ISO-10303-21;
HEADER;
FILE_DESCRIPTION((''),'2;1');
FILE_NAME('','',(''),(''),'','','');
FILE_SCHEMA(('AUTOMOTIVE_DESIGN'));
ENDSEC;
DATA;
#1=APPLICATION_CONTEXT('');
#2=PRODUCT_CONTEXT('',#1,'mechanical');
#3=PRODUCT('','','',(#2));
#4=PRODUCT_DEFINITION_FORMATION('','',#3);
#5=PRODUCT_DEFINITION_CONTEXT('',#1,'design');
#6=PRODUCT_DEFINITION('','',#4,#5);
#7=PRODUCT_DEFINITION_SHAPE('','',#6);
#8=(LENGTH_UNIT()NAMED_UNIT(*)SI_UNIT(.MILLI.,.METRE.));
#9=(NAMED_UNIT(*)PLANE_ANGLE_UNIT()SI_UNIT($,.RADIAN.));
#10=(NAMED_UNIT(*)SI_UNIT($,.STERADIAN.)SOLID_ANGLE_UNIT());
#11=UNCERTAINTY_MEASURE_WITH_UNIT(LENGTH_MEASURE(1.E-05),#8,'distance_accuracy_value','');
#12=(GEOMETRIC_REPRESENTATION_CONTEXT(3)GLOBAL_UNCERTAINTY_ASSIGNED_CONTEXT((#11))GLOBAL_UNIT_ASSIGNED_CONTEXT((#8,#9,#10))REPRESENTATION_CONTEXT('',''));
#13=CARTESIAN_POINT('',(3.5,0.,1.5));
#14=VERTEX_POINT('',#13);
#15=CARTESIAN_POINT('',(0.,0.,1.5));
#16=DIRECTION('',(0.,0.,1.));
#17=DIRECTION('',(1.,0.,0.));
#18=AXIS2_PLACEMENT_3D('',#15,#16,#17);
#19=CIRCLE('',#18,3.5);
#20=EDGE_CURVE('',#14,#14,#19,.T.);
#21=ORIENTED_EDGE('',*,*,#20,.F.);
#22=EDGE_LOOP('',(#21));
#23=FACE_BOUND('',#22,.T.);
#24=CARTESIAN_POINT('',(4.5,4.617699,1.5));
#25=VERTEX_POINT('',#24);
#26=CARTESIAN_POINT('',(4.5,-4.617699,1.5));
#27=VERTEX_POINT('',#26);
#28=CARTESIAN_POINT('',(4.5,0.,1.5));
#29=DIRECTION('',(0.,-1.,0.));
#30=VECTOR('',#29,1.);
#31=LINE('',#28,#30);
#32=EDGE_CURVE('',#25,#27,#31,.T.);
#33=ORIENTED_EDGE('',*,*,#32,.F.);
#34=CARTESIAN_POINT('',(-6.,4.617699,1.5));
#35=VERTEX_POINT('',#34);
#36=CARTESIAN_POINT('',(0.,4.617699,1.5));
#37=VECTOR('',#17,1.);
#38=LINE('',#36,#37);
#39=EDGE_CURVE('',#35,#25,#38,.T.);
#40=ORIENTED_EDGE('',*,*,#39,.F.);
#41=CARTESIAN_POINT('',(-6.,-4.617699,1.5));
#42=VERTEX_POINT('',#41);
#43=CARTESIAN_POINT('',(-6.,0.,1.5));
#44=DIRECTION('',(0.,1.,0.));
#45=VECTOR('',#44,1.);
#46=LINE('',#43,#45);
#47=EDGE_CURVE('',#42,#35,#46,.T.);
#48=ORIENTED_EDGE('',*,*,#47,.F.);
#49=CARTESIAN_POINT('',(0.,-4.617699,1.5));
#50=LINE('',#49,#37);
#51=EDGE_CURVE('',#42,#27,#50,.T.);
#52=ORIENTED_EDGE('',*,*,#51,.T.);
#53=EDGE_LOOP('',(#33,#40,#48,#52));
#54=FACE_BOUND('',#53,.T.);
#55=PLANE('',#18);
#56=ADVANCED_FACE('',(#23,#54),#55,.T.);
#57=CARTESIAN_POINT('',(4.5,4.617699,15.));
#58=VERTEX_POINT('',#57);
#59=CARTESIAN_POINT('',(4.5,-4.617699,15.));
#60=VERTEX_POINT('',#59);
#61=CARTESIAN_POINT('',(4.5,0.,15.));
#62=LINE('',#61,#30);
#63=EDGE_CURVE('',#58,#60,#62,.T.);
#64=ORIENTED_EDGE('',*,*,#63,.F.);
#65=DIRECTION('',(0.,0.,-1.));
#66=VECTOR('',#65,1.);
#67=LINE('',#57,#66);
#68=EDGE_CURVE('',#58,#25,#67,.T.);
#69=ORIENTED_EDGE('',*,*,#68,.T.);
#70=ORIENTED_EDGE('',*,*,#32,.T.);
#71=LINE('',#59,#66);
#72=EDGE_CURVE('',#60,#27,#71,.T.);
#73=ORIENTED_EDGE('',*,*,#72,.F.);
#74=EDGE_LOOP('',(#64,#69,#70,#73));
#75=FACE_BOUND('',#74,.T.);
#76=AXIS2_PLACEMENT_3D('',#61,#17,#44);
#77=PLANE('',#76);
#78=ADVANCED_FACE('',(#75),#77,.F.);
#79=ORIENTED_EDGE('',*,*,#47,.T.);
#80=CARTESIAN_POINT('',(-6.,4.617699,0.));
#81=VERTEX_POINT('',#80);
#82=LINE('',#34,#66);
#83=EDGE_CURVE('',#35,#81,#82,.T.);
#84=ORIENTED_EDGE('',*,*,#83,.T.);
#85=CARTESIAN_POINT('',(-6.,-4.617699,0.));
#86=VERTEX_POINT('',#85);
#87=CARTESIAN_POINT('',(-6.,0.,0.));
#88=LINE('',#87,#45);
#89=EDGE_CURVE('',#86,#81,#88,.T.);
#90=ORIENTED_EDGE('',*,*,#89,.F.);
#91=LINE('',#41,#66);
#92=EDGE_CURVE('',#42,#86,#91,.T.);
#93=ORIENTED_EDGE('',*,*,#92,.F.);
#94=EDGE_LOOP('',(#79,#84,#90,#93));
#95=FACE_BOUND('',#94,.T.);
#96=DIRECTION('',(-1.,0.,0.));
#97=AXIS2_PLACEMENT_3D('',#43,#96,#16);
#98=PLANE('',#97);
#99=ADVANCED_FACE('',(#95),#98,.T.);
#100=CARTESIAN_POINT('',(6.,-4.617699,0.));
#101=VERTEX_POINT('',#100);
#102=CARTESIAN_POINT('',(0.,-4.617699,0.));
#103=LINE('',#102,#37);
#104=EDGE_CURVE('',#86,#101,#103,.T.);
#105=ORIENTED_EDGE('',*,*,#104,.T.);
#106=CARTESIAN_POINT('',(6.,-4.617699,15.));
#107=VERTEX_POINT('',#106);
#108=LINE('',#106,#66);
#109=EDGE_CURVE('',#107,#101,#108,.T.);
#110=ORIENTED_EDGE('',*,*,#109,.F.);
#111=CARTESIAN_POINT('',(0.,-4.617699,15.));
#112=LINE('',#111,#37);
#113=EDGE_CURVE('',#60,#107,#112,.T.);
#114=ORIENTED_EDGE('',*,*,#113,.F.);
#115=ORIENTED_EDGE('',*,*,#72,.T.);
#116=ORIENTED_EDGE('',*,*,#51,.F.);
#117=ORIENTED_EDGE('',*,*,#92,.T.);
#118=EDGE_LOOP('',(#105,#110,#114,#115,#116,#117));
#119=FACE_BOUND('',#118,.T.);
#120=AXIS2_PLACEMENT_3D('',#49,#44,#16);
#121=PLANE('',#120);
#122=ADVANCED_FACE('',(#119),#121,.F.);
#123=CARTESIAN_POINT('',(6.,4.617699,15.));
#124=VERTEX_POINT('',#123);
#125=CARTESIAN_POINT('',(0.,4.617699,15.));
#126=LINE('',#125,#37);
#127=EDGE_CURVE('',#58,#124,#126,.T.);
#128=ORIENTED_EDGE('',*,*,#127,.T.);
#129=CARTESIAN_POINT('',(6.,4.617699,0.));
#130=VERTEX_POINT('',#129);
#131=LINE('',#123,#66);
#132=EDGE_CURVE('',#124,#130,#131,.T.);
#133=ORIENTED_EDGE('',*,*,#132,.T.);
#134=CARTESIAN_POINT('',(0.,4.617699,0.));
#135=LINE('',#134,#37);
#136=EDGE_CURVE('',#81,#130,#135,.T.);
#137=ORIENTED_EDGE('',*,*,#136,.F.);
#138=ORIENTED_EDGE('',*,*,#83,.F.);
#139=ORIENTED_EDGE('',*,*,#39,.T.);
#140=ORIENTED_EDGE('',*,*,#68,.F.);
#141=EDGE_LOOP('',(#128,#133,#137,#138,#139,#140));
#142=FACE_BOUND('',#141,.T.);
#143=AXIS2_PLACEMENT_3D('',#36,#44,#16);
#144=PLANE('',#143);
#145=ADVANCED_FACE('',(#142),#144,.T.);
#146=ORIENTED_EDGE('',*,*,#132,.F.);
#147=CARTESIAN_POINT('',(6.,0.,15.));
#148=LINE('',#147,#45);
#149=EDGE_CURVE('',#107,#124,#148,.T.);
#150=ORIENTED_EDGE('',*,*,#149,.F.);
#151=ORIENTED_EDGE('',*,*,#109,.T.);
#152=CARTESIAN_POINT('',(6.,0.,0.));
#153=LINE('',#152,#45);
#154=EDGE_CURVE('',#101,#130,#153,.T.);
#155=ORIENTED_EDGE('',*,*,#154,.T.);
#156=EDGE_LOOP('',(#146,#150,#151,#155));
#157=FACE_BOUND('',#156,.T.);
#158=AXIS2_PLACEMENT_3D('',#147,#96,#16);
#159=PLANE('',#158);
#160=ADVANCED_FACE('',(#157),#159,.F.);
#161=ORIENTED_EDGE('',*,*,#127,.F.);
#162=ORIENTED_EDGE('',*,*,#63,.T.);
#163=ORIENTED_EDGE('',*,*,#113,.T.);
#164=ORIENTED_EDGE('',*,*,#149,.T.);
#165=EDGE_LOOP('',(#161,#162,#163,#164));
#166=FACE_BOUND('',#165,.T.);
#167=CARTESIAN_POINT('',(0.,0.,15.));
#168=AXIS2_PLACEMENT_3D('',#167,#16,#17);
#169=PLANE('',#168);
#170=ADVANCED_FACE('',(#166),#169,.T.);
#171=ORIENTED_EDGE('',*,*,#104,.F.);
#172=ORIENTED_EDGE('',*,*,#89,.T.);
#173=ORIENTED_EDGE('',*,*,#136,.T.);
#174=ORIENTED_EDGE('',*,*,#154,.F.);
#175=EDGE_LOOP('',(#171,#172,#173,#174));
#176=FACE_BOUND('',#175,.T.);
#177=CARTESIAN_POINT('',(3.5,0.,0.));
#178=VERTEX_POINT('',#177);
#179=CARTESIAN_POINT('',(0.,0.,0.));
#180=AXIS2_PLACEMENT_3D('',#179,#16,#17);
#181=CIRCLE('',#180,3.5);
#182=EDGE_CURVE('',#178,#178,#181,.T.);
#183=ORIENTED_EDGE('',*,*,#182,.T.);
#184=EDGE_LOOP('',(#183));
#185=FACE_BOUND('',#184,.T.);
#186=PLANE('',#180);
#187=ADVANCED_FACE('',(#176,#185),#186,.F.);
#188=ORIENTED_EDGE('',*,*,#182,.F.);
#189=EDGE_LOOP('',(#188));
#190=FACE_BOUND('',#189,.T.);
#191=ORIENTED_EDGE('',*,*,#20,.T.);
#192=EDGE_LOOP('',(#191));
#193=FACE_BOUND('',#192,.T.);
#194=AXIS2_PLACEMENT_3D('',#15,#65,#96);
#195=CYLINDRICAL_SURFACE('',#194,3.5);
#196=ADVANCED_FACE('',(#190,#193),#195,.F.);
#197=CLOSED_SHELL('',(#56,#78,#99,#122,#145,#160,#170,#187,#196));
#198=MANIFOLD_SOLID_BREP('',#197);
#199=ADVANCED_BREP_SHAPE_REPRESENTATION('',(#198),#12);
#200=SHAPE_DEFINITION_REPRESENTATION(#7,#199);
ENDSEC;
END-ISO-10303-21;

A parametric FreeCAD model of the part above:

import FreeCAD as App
import Part
import Sketcher

V = App.Vector
Q = App.Units.Quantity


def add_polygon(sketch, points):
    """Adds a closed chain of lines whose ends are joined by coincident constraints."""
    first, n = sketch.GeometryCount, len(points)
    for a, b in zip(points, points[1:] + points[:1]):
        sketch.addGeometry(Part.LineSegment(App.Vector(*a, 0), App.Vector(*b, 0)), False)
    for i in range(n):
        sketch.addConstraint(Sketcher.Constraint("Coincident", first + i, 2, first + (i + 1) % n, 1))

doc = App.newDocument("Part")
params = doc.addObject("Spreadsheet::Sheet", "Params")
for row, (alias, value) in enumerate([
    ("sketch1_diameter", "7 mm"),
    ("sketch1_width", "10.5 mm"),
    ("pad1_length", "1.5 mm"),
    ("sketch2_width", "1.5 mm"),
    ("pad2_length", "15 mm"),
], start=1):
    params.set(f"A{row}", alias)
    params.set(f"B{row}", "=" + value)
    params.setAlias(f"B{row}", alias)

body = doc.addObject("PartDesign::Body", "Body")

sketch1 = body.newObject("Sketcher::SketchObject", "Sketch")
sketch1.AttachmentSupport = (doc.getObject("XY_Plane"), [""])
sketch1.MapMode = "FlatFace"
add_polygon(sketch1, [(-6, 4.6), (-6, -4.6), (4.5, -4.6), (4.5, 4.6)])
sketch1.addGeometry(Part.Circle(V(0, 0, 0), V(0, 0, 1), 3.5), False)
sketch1.addConstraint(Sketcher.Constraint("Vertical", 0))
sketch1.addConstraint(Sketcher.Constraint("Horizontal", 1))
sketch1.addConstraint(Sketcher.Constraint("Vertical", 2))
sketch1.addConstraint(Sketcher.Constraint("Horizontal", 3))
sketch1.addConstraint(Sketcher.Constraint("Coincident", 4, 3, -1, 1))
sketch1.addConstraint(Sketcher.Constraint("Diameter", 4, Q("7 mm")))
sketch1.addConstraint(Sketcher.Constraint("DistanceX", 1, 1, 1, 2, Q("10.5 mm")))
sketch1.addConstraint(Sketcher.Constraint("DistanceX", 0, 2, -1, 1, Q("6 mm")))
sketch1.addConstraint(Sketcher.Constraint("DistanceY", 0, 2, -1, 1, Q("4.617699 mm")))
sketch1.addConstraint(Sketcher.Constraint("DistanceY", -1, 1, 2, 2, Q("4.617699 mm")))
sketch1.setExpression("Constraints[9]", "Params.sketch1_diameter")
sketch1.setExpression("Constraints[10]", "Params.sketch1_width")
pad1 = body.newObject("PartDesign::Pad", "Pad")
pad1.Profile = sketch1
pad1.setExpression("Length", "Params.pad1_length")

sketch2 = body.newObject("Sketcher::SketchObject", "Sketch001")
sketch2.AttachmentSupport = (doc.getObject("XY_Plane"), [""])
sketch2.MapMode = "FlatFace"
add_polygon(sketch2, [(4.5, 4.6), (4.5, -4.6), (6, -4.6), (6, 4.6)])
sketch2.addConstraint(Sketcher.Constraint("Vertical", 0))
sketch2.addConstraint(Sketcher.Constraint("Horizontal", 1))
sketch2.addConstraint(Sketcher.Constraint("Vertical", 2))
sketch2.addConstraint(Sketcher.Constraint("Horizontal", 3))
sketch2.addConstraint(Sketcher.Constraint("DistanceX", 1, 1, 1, 2, Q("1.5 mm")))
sketch2.addConstraint(Sketcher.Constraint("DistanceX", -1, 1, 1, 2, Q("6 mm")))
sketch2.addConstraint(Sketcher.Constraint("DistanceY", 0, 2, -1, 1, Q("4.617699 mm")))
sketch2.addConstraint(Sketcher.Constraint("DistanceY", -1, 1, 2, 2, Q("4.617699 mm")))
sketch2.setExpression("Constraints[8]", "Params.sketch2_width")
pad2 = body.newObject("PartDesign::Pad", "Pad001")
pad2.Profile = sketch2
pad2.setExpression("Length", "Params.pad2_length")

doc.recompute()
